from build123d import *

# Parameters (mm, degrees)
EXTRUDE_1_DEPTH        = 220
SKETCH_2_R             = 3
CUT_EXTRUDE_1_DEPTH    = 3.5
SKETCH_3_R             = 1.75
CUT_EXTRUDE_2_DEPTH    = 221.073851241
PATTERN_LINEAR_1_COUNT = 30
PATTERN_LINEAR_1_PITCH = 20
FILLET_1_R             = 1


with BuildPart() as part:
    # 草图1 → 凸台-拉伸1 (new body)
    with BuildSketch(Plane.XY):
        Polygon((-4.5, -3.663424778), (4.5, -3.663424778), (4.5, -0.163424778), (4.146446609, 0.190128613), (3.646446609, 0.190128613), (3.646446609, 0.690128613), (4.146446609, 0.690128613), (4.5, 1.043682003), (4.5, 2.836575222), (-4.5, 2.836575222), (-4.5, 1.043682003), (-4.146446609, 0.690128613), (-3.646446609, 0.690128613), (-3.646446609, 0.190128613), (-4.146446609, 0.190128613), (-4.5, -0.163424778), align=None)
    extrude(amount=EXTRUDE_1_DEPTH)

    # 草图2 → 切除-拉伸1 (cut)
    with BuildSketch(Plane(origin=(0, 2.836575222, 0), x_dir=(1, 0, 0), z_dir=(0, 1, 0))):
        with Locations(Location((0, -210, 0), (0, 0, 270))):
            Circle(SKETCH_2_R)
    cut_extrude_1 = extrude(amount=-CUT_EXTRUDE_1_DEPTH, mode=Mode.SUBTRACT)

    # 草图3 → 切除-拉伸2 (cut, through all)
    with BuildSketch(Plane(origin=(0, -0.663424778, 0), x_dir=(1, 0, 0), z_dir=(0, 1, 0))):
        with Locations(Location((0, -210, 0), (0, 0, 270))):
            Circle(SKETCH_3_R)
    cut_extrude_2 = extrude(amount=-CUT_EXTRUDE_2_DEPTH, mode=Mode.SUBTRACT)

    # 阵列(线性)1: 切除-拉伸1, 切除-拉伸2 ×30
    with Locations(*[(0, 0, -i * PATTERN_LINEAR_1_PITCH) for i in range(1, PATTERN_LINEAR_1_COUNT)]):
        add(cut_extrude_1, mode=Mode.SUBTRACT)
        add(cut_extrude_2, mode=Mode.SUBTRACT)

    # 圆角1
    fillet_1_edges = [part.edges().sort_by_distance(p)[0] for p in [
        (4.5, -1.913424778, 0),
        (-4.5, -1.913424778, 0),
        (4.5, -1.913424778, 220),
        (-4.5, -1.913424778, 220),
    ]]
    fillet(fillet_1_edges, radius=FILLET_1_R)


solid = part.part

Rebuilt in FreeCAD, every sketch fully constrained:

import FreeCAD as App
import Part
import Sketcher
from FreeCAD import Vector
Q = App.Units.Quantity


def edges_at(feature, points):
    """Names of the edges that pass closest to the given points."""
    edges = feature.Shape.Edges
    near = lambda p: min(range(len(edges)), key=lambda i: edges[i].distToShape(Part.Vertex(*p))[0])
    return sorted({f"Edge{near(p) + 1}" for p in points})

doc = App.newDocument("Part")
body = doc.addObject("PartDesign::Body", "Body")

sketch1 = doc.addObject("Sketcher::SketchObject", "Sketch")
body.addObject(sketch1)
sketch1.AttachmentSupport = (doc.XY_Plane, [""])
sketch1.MapMode = "FlatFace"
sketch1.addGeometry([
    Part.LineSegment(Vector(-4.5, -3.66, 0), Vector(4.5, -3.66, 0)),
    Part.LineSegment(Vector(4.5, -3.66, 0), Vector(4.5, -0.16, 0)),
    Part.LineSegment(Vector(4.5, -0.16, 0), Vector(4.15, 0.19, 0)),
    Part.LineSegment(Vector(4.15, 0.19, 0), Vector(3.65, 0.19, 0)),
    Part.LineSegment(Vector(3.65, 0.19, 0), Vector(3.65, 0.69, 0)),
    Part.LineSegment(Vector(3.65, 0.69, 0), Vector(4.15, 0.69, 0)),
    Part.LineSegment(Vector(4.15, 0.69, 0), Vector(4.5, 1.04, 0)),
    Part.LineSegment(Vector(4.5, 1.04, 0), Vector(4.5, 2.84, 0)),
    Part.LineSegment(Vector(4.5, 2.84, 0), Vector(-4.5, 2.84, 0)),
    Part.LineSegment(Vector(-4.5, 2.84, 0), Vector(-4.5, 1.04, 0)),
    Part.LineSegment(Vector(-4.5, 1.04, 0), Vector(-4.15, 0.69, 0)),
    Part.LineSegment(Vector(-4.15, 0.69, 0), Vector(-3.65, 0.69, 0)),
    Part.LineSegment(Vector(-3.65, 0.69, 0), Vector(-3.65, 0.19, 0)),
    Part.LineSegment(Vector(-3.65, 0.19, 0), Vector(-4.15, 0.19, 0)),
    Part.LineSegment(Vector(-4.15, 0.19, 0), Vector(-4.5, -0.16, 0)),
    Part.LineSegment(Vector(-4.5, -0.16, 0), Vector(-4.5, -3.66, 0)),
], False)
sketch1.addConstraint([
    Sketcher.Constraint("Coincident", 0, 2, 1, 1),
    Sketcher.Constraint("Coincident", 1, 2, 2, 1),
    Sketcher.Constraint("Coincident", 2, 2, 3, 1),
    Sketcher.Constraint("Coincident", 3, 2, 4, 1),
    Sketcher.Constraint("Coincident", 4, 2, 5, 1),
    Sketcher.Constraint("Coincident", 5, 2, 6, 1),
    Sketcher.Constraint("Coincident", 6, 2, 7, 1),
    Sketcher.Constraint("Coincident", 7, 2, 8, 1),
    Sketcher.Constraint("Coincident", 8, 2, 9, 1),
    Sketcher.Constraint("Coincident", 9, 2, 10, 1),
    Sketcher.Constraint("Coincident", 10, 2, 11, 1),
    Sketcher.Constraint("Coincident", 11, 2, 12, 1),
    Sketcher.Constraint("Coincident", 12, 2, 13, 1),
    Sketcher.Constraint("Coincident", 13, 2, 14, 1),
    Sketcher.Constraint("Coincident", 14, 2, 15, 1),
    Sketcher.Constraint("Coincident", 15, 2, 0, 1),
    Sketcher.Constraint("Horizontal", 0),
    Sketcher.Constraint("Vertical", 1),
    Sketcher.Constraint("Horizontal", 3),
    Sketcher.Constraint("Vertical", 4),
    Sketcher.Constraint("Horizontal", 5),
    Sketcher.Constraint("Vertical", 7),
    Sketcher.Constraint("Horizontal", 8),
    Sketcher.Constraint("Vertical", 9),
    Sketcher.Constraint("Horizontal", 11),
    Sketcher.Constraint("Vertical", 12),
    Sketcher.Constraint("Horizontal", 13),
    Sketcher.Constraint("Vertical", 15),
    Sketcher.Constraint("Symmetric", 6, 2, 9, 2, -2),
    Sketcher.Constraint("Symmetric", 5, 2, 10, 2, -2),
    Sketcher.Constraint("Symmetric", 3, 2, 12, 2, -2),
    Sketcher.Constraint("Symmetric", 1, 2, 14, 2, -2),
    Sketcher.Constraint("Perpendicular", 2, 6),
    Sketcher.Constraint("Perpendicular", 6, 10),
    Sketcher.Constraint("Perpendicular", 10, 14),
    Sketcher.Constraint("Vertical", 2, 2, 5, 2),
    Sketcher.Constraint("Vertical", 1, 2, 6, 2),
    Sketcher.Constraint("Equal", 13, 4),
    Sketcher.Constraint("DistanceX", 0, 1, 0, 2, Q("9 mm")),
    Sketcher.Constraint("DistanceX", 3, 2, 3, 1, Q("0.5 mm")),
    Sketcher.Constraint("DistanceY", 1, 1, 1, 2, Q("3.5 mm")),
    Sketcher.Constraint("Distance", 2, Q("0.5 mm")),
    Sketcher.Constraint("DistanceY", 7, 1, 7, 2, Q("1.792893 mm")),
    Sketcher.Constraint("DistanceY", -1, 1, 2, 2, Q("0.190129 mm")),
])
pad1 = doc.addObject("PartDesign::Pad", "Pad")
body.addObject(pad1)
pad1.Profile = sketch1
pad1.Length = 220

sketch2 = doc.addObject("Sketcher::SketchObject", "Sketch001")
body.addObject(sketch2)
sketch2.AttachmentSupport = (doc.XZ_Plane, [""])
sketch2.MapMode = "FlatFace"
sketch2.AttachmentOffset = App.Placement(Vector(0, 0, -2.836575), App.Rotation())
sketch2.addGeometry(Part.Circle(Vector(0, 210, 0), Vector(0, 0, 1), 3), False)
sketch2.addConstraint([
    Sketcher.Constraint("PointOnObject", 0, 3, -2),
    Sketcher.Constraint("Diameter", 0, Q("6 mm")),
    Sketcher.Constraint("DistanceY", -1, 1, 0, 3, Q("210 mm")),
])
pocket1 = doc.addObject("PartDesign::Pocket", "Pocket")
body.addObject(pocket1)
pocket1.Profile = sketch2
pocket1.Length = 3.5
pocket1.Reversed = True

sketch3 = doc.addObject("Sketcher::SketchObject", "Sketch002")
body.addObject(sketch3)
sketch3.AttachmentSupport = (doc.XZ_Plane, [""])
sketch3.MapMode = "FlatFace"
sketch3.AttachmentOffset = App.Placement(Vector(0, 0, 0.663425), App.Rotation())
sketch3.addGeometry(Part.Circle(Vector(0, 210, 0), Vector(0, 0, 1), 1.8), False)
sketch3.addConstraint([
    Sketcher.Constraint("PointOnObject", 0, 3, -2),
    Sketcher.Constraint("Diameter", 0, Q("3.5 mm")),
    Sketcher.Constraint("DistanceY", -1, 1, 0, 3, Q("210 mm")),
])
pocket2 = doc.addObject("PartDesign::Pocket", "Pocket001")
body.addObject(pocket2)
pocket2.Profile = sketch3
pocket2.Type = "ThroughAll"
pocket2.Reversed = True
doc.recompute()

linearpattern = doc.addObject("PartDesign::LinearPattern", "LinearPattern")
body.addObject(linearpattern)
linearpattern.Originals = [pocket1, pocket2]
linearpattern.Direction = (doc.Z_Axis, [""])
linearpattern.Mode = "offset"
linearpattern.Offset = 20
linearpattern.Occurrences = 30
linearpattern.Reversed = True
body.Tip = linearpattern
doc.recompute()

fillet = doc.addObject("PartDesign::Fillet", "Fillet")
body.addObject(fillet)
fillet.Base = (linearpattern, edges_at(linearpattern, [
    (4.5, -1.913, 0),
    (-4.5, -1.913, 0),
    (4.5, -1.913, 220),
    (-4.5, -1.913, 220),
]))
fillet.Radius = 1

doc.recompute()
